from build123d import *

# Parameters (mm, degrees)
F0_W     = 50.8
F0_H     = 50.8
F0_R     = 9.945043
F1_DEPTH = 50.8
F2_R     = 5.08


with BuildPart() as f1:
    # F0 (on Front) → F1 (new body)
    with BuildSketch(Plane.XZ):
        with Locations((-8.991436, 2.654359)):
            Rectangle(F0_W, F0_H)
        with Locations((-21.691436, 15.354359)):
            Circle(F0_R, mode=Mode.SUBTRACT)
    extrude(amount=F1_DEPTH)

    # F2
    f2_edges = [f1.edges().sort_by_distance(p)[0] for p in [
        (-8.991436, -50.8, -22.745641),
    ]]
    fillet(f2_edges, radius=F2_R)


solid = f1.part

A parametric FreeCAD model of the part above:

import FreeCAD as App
import Part
import Sketcher
Q = App.Units.Quantity


def edges_at(feature, points):
    """Names of the edges that pass closest to the given points."""
    edges = feature.Shape.Edges
    near = lambda p: min(range(len(edges)), key=lambda i: edges[i].distToShape(Part.Vertex(*p))[0])
    return sorted({f"Edge{near(p) + 1}" for p in points})

doc = App.newDocument("Part")
body = doc.addObject("PartDesign::Body", "Body")

# Sketch on XZ plane
sketch1 = doc.addObject("Sketcher::SketchObject", "Sketch")
body.addObject(sketch1)
sketch1.AttachmentSupport = (doc.XZ_Plane, [""])
sketch1.MapMode = "FlatFace"
sketch1.addGeometry(Part.LineSegment(App.Vector(-34, 28, 0), App.Vector(-34, -23, 0)), False)
sketch1.addGeometry(Part.LineSegment(App.Vector(-34, -23, 0), App.Vector(16, -23, 0)), False)
sketch1.addGeometry(Part.LineSegment(App.Vector(16, -23, 0), App.Vector(16, 28, 0)), False)
sketch1.addGeometry(Part.LineSegment(App.Vector(16, 28, 0), App.Vector(-34, 28, 0)), False)
sketch1.addGeometry(Part.Circle(App.Vector(-22, 15, 0), App.Vector(0, 0, 1), 10), False)
sketch1.addConstraint(Sketcher.Constraint("Coincident", 0, 2, 1, 1))
sketch1.addConstraint(Sketcher.Constraint("Coincident", 1, 2, 2, 1))
sketch1.addConstraint(Sketcher.Constraint("Coincident", 2, 2, 3, 1))
sketch1.addConstraint(Sketcher.Constraint("Coincident", 3, 2, 0, 1))
sketch1.addConstraint(Sketcher.Constraint("Vertical", 0))
sketch1.addConstraint(Sketcher.Constraint("Horizontal", 1))
sketch1.addConstraint(Sketcher.Constraint("Vertical", 2))
sketch1.addConstraint(Sketcher.Constraint("Horizontal", 3))
sketch1.addConstraint(Sketcher.Constraint("Equal", 3, 0))
sketch1.addConstraint(Sketcher.Constraint("DistanceX", 1, 1, 1, 2, Q("2 in")))
sketch1.addConstraint(Sketcher.Constraint("DistanceX", 0, 2, 4, 3, Q("0.5 in")))
sketch1.addConstraint(Sketcher.Constraint("DistanceY", 0, 2, 4, 3, Q("1.5 in")))
sketch1.addConstraint(Sketcher.Constraint("Diameter", 4, Q("19.890086 mm")))
sketch1.addConstraint(Sketcher.Constraint("DistanceY", -1, 1, 4, 3, Q("15.354359 mm")))
sketch1.addConstraint(Sketcher.Constraint("DistanceX", 4, 3, -1, 1, Q("21.691436 mm")))
pad1 = doc.addObject("PartDesign::Pad", "Pad")
body.addObject(pad1)
pad1.Profile = sketch1
pad1.Length = Q("2 in")
doc.recompute()

fillet = doc.addObject("PartDesign::Fillet", "Fillet")
body.addObject(fillet)
fillet.Base = (pad1, edges_at(pad1, [(-8.991, -50.8, -22.746)]))
fillet.Radius = Q("0.2 in")

doc.recompute()
